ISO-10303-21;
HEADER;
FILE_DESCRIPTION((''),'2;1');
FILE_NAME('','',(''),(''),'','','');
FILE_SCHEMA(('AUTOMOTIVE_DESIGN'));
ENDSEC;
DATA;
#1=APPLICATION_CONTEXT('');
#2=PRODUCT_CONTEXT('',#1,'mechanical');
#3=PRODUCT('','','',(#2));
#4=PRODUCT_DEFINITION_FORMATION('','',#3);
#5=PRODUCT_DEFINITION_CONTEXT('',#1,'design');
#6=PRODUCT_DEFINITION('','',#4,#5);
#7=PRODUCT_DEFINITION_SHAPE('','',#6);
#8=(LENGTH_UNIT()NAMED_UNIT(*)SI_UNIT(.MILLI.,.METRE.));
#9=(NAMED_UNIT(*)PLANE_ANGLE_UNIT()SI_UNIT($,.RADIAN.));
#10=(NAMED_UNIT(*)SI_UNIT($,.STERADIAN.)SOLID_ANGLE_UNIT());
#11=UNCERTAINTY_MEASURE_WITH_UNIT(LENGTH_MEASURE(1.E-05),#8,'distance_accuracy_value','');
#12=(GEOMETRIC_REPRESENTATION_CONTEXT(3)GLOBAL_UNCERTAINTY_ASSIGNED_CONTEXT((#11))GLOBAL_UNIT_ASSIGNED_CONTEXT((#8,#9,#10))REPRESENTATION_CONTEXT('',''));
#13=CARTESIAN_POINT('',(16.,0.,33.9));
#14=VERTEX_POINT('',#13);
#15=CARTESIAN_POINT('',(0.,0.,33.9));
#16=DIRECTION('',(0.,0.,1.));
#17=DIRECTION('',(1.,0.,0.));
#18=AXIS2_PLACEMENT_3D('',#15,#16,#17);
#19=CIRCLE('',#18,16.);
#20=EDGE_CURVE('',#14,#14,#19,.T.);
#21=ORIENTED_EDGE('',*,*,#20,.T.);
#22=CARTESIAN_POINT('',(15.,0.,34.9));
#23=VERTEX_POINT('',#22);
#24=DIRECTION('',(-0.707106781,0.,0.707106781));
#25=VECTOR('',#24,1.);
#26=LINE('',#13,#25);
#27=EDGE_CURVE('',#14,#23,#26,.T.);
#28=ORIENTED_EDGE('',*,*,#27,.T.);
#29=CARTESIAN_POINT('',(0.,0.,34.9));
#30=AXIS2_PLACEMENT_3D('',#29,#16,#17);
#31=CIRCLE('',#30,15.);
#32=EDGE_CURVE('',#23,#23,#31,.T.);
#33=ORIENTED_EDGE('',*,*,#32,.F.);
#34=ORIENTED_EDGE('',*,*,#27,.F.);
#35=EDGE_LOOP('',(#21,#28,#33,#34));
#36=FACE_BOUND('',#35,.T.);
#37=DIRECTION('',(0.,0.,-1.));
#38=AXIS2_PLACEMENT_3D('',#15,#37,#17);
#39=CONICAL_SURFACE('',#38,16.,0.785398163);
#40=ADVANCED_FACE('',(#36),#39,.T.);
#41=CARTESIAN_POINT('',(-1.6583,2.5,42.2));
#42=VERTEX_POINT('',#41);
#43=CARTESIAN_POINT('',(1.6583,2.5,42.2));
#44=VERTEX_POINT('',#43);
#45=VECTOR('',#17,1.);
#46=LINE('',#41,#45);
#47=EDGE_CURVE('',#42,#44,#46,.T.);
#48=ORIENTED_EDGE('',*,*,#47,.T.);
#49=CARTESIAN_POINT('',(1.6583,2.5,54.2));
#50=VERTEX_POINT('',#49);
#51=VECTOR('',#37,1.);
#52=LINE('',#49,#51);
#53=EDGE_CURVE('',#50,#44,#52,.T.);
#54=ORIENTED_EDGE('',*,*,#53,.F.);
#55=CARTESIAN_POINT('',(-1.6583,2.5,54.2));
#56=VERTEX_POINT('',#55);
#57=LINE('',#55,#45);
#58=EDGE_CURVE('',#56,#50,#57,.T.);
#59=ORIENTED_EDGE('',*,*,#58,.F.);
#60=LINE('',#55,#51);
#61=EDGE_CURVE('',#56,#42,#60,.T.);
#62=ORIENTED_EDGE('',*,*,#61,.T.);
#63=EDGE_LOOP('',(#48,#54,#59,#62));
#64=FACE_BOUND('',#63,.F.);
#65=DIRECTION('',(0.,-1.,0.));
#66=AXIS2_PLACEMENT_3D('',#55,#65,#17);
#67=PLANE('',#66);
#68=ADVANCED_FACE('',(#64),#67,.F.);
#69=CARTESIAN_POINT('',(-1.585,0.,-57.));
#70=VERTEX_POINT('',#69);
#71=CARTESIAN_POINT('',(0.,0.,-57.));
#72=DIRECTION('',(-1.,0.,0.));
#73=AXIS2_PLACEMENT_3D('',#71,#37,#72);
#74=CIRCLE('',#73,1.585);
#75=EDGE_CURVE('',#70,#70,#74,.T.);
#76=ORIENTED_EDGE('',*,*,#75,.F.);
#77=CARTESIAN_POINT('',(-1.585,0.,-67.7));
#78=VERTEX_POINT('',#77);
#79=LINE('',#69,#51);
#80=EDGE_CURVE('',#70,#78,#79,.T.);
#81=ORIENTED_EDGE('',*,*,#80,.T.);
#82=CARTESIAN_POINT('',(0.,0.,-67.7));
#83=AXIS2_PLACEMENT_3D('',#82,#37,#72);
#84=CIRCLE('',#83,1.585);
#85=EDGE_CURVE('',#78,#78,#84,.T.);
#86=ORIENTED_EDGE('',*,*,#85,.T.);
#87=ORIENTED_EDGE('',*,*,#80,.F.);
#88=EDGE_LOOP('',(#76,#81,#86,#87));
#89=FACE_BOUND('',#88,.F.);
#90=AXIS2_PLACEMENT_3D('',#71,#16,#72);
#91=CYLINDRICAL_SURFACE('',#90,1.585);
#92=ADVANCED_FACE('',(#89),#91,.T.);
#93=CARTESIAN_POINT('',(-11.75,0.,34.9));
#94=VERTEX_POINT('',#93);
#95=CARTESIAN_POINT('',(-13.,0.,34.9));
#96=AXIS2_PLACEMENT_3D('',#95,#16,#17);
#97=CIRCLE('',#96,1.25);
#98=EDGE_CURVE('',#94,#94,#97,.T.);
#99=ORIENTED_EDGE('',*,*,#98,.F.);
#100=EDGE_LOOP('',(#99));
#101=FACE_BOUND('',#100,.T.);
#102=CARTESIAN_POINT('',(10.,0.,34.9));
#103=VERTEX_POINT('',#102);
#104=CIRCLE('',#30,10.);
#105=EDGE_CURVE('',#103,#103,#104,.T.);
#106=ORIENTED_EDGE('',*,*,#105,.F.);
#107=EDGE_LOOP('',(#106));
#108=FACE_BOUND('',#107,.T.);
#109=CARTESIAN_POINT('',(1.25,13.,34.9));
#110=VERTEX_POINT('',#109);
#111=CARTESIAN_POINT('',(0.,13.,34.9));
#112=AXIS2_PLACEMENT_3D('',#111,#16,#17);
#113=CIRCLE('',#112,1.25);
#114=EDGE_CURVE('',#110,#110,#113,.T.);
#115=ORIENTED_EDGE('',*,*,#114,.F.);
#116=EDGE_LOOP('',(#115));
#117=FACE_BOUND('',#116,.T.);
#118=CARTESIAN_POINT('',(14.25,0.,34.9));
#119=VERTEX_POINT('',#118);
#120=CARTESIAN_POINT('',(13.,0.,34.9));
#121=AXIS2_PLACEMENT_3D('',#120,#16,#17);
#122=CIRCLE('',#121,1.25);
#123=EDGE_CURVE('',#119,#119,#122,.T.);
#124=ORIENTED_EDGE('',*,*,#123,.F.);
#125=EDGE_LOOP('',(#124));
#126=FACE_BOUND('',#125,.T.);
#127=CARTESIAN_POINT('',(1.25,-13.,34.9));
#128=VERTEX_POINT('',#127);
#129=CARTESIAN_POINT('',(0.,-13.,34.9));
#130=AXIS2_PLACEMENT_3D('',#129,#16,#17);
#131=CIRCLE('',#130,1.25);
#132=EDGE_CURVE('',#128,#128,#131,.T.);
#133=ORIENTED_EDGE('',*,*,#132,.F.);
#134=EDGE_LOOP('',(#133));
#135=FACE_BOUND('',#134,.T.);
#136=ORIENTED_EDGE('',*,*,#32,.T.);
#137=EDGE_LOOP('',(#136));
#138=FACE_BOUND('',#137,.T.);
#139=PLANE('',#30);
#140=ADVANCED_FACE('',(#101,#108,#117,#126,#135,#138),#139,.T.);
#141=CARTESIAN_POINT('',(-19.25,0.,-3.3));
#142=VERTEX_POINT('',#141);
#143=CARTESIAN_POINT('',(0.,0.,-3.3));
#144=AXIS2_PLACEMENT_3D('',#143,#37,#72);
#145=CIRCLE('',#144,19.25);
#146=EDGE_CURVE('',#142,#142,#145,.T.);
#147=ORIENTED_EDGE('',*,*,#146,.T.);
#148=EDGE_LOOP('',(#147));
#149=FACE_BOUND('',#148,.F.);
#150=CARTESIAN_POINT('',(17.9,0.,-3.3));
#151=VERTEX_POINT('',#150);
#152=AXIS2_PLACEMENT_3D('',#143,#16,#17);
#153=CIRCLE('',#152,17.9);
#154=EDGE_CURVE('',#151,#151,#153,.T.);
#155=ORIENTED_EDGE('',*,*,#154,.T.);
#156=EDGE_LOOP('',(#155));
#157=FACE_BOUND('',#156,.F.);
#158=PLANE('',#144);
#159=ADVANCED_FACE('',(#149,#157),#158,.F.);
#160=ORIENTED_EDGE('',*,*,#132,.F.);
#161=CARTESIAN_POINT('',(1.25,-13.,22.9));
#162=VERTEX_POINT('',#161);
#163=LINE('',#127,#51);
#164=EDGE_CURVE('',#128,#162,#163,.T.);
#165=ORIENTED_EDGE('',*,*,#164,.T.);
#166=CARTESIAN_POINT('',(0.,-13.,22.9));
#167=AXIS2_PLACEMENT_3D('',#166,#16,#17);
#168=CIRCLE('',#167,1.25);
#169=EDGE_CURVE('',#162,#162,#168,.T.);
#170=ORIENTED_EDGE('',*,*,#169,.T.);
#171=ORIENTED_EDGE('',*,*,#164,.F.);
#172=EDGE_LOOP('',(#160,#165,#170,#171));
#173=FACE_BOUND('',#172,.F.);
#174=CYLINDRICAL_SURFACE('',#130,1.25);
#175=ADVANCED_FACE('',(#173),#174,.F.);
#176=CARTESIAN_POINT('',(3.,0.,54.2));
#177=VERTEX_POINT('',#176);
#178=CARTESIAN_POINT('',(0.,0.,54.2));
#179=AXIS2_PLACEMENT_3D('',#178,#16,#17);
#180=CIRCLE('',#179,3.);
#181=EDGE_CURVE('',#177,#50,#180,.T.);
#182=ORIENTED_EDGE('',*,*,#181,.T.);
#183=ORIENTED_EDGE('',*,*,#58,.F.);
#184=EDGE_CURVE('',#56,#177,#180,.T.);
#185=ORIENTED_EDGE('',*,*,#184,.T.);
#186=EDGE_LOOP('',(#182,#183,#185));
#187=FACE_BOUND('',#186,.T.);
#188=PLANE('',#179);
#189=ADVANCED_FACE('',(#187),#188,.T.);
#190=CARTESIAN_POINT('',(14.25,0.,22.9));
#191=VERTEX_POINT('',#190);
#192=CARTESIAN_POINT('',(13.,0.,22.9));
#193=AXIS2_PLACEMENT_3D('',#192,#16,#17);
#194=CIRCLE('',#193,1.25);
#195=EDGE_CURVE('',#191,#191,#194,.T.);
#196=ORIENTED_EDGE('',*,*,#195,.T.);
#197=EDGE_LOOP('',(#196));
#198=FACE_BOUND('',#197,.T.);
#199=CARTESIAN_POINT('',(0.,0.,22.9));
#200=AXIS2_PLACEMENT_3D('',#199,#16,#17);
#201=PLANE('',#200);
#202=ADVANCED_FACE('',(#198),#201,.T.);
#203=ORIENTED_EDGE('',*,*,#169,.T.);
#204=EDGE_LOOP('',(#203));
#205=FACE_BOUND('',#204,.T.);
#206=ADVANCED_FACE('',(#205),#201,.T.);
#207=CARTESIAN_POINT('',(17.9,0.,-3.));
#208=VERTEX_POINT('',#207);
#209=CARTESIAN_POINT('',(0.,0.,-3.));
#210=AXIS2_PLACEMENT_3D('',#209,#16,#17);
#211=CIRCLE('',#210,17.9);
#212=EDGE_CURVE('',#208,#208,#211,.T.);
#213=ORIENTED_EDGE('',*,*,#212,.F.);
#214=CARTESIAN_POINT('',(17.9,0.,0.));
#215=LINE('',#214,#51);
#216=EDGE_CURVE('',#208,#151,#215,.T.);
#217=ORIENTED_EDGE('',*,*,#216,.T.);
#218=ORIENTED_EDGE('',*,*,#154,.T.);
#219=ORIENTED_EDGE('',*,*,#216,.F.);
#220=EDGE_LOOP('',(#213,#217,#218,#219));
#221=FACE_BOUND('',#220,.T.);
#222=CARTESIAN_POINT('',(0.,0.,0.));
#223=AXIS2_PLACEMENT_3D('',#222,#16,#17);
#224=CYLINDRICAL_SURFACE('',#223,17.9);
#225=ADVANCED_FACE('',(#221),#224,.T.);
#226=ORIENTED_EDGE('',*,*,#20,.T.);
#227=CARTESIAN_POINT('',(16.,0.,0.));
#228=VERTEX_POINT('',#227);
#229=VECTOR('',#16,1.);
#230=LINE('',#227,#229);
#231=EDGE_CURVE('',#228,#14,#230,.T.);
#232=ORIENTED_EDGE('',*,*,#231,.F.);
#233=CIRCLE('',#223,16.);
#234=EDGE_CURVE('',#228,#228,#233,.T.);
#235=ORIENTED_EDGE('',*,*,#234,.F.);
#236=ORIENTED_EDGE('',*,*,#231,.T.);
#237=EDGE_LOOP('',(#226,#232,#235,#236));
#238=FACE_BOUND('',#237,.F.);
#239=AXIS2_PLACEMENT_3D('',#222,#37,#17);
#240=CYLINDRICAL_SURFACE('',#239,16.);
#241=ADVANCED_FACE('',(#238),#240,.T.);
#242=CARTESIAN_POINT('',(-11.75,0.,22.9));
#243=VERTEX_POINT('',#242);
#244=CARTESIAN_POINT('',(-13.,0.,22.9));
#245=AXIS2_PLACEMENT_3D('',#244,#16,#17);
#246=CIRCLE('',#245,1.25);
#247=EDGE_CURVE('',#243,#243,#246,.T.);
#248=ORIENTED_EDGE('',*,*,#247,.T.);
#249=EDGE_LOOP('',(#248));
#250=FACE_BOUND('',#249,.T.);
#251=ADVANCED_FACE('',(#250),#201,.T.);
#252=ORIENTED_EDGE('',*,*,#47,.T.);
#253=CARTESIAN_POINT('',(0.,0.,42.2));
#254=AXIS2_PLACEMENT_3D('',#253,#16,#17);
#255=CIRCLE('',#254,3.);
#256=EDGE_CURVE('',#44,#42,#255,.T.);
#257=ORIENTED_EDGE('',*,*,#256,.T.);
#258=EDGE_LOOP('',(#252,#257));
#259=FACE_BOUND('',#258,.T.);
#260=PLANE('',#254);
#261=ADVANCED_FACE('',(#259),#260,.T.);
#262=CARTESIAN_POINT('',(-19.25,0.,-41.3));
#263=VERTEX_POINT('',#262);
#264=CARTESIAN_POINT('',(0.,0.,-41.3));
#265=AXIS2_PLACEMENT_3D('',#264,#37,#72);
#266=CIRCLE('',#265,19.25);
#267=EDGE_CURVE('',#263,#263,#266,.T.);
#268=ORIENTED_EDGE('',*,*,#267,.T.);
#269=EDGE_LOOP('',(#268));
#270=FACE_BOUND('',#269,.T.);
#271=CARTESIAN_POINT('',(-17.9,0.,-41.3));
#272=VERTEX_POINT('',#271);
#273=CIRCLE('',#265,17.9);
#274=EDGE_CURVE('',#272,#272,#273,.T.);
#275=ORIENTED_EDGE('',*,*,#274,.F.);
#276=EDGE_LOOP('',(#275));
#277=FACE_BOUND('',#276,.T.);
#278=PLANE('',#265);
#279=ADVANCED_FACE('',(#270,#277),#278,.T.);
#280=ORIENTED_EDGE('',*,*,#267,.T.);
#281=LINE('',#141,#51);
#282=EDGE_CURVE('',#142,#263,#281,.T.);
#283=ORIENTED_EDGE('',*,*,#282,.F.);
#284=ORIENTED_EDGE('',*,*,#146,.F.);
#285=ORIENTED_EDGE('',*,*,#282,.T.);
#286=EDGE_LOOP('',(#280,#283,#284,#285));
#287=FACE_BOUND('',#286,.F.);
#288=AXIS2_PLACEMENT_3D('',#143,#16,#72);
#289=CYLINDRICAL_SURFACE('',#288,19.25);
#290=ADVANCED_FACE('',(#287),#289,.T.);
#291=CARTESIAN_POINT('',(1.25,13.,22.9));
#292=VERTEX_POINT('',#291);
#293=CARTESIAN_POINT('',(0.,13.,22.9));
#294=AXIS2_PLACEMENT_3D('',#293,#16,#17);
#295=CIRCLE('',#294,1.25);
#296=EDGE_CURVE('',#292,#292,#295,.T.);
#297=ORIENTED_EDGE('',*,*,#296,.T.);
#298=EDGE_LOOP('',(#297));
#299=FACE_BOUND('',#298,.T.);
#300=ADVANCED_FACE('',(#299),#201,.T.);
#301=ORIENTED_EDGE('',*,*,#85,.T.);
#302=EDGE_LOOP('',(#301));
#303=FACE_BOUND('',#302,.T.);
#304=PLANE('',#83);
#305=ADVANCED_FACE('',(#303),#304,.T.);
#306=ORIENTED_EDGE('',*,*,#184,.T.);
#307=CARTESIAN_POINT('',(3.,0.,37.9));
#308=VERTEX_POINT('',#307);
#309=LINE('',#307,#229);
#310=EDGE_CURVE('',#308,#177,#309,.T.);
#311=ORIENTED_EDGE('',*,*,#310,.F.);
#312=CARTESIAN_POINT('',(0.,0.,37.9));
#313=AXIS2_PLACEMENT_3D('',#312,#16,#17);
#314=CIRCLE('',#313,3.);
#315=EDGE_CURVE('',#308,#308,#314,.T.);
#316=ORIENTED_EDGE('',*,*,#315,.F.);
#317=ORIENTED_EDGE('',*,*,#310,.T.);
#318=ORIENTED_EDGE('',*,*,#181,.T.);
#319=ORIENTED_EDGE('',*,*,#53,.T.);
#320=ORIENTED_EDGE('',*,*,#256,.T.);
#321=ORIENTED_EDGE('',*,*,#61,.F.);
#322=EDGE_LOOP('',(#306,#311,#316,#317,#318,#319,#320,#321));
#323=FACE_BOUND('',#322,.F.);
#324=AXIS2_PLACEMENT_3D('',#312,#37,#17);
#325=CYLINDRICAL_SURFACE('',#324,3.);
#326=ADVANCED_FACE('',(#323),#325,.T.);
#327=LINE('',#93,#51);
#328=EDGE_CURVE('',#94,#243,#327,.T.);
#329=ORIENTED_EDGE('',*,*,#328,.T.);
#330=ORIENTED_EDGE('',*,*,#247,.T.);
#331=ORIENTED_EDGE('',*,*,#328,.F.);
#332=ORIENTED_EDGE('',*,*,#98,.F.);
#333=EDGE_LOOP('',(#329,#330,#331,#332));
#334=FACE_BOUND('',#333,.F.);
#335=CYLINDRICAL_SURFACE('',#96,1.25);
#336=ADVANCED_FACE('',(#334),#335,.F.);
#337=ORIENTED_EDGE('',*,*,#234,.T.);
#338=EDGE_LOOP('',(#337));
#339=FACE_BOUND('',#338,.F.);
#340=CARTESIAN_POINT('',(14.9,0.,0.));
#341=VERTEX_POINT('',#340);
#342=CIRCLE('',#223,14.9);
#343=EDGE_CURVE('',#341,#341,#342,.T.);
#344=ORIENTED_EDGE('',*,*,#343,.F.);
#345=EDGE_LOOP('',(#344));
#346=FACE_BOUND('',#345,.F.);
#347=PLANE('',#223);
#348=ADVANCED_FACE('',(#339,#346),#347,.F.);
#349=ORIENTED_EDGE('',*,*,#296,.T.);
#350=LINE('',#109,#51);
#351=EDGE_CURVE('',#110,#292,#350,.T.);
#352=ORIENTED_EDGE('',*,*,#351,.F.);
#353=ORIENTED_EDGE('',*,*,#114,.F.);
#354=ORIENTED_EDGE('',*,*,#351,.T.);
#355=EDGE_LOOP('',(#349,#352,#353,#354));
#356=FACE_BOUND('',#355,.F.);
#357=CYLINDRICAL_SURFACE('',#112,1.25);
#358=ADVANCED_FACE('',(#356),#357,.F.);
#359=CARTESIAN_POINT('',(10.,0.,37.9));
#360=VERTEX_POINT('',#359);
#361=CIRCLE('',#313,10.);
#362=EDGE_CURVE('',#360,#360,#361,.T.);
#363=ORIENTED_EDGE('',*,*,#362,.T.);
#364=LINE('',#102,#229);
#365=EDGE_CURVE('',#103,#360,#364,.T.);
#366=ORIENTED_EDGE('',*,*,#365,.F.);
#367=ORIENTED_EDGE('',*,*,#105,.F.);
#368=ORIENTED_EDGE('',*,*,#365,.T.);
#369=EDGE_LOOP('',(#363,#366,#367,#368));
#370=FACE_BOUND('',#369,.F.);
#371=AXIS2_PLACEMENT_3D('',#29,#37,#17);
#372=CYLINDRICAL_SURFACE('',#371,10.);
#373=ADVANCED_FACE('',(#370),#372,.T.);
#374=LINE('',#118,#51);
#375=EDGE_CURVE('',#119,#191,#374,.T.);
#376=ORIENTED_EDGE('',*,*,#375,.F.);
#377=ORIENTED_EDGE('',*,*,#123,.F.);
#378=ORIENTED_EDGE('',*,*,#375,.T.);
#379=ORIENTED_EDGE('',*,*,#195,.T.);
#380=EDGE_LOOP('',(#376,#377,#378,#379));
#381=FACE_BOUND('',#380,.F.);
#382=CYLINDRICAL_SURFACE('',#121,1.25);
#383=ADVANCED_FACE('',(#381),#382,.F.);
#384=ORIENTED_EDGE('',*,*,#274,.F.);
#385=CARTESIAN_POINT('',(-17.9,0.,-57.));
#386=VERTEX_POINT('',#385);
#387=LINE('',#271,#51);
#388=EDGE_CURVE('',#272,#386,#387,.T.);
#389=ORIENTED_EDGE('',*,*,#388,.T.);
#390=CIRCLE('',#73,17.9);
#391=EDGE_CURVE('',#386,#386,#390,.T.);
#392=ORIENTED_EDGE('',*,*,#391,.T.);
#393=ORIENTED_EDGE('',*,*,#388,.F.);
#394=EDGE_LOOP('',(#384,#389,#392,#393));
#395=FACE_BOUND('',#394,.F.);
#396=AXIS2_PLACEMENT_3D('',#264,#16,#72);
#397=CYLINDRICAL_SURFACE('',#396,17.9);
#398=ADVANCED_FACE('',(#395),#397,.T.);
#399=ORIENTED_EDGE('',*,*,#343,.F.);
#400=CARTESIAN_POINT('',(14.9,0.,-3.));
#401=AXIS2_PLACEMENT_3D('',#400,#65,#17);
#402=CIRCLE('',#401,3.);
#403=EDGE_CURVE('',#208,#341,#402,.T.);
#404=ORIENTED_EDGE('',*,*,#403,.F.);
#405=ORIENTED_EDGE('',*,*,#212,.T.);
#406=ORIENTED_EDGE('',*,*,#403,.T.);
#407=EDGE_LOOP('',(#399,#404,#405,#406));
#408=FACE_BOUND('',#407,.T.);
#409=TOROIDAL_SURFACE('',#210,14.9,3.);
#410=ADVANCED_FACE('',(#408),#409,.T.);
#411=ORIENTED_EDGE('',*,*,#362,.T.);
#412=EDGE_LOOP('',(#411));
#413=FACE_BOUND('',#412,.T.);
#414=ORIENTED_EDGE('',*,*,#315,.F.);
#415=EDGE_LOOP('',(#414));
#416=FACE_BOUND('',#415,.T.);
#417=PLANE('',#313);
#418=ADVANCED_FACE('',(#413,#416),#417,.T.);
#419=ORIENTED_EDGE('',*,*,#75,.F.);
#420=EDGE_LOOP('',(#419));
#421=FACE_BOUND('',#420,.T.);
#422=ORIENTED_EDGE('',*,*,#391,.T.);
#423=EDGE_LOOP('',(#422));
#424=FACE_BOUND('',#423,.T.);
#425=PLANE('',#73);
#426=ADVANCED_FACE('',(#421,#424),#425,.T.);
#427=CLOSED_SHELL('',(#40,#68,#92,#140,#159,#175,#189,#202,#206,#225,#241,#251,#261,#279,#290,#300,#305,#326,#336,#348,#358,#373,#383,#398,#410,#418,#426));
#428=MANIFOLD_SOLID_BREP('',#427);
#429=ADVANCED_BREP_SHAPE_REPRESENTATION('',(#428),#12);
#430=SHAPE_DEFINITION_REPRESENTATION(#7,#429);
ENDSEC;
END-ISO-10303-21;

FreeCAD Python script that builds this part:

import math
import FreeCAD as App
import Part
import Sketcher

V = App.Vector


def edges_at(feature, points):
    """Names of the edges that pass closest to the given points."""
    edges = feature.Shape.Edges
    near = lambda p: min(range(len(edges)), key=lambda i: edges[i].distToShape(Part.Vertex(*p))[0])
    return sorted({f"Edge{near(p) + 1}" for p in points})

doc = App.newDocument("Part")
body = doc.addObject("PartDesign::Body", "Body")

# Sketch on XY plane
sketch1 = doc.addObject("Sketcher::SketchObject", "Sketch")
body.addObject(sketch1)
sketch1.AttachmentSupport = (doc.XY_Plane, [""])
sketch1.MapMode = "FlatFace"
sketch1.addGeometry(Part.Circle(V(0, 0, 0), V(0, 0, 1), 18), False)
sketch1.addConstraint(Sketcher.Constraint("Coincident", 0, 3, -1, 1))
sketch1.addConstraint(Sketcher.Constraint("Diameter", 0, 35.8))
pad1 = doc.addObject("PartDesign::Pad", "Pad")
body.addObject(pad1)
pad1.Profile = sketch1
pad1.Length = 3.3
pad1.Reversed = True
doc.recompute()

fillet = doc.addObject("PartDesign::Fillet", "Fillet")
body.addObject(fillet)
fillet.Base = (pad1, edges_at(pad1, [(-17.9, 0, 0)]))
fillet.Radius = 3

# Sketch on XY plane
sketch2 = doc.addObject("Sketcher::SketchObject", "Sketch001")
body.addObject(sketch2)
sketch2.AttachmentSupport = (doc.XY_Plane, [""])
sketch2.MapMode = "FlatFace"
sketch2.AttachmentOffset = App.Placement(V(0, 0, -3.3), App.Rotation())
sketch2.addGeometry(Part.Circle(V(0, 0, 0), V(0, 0, 1), 19), False)
sketch2.addConstraint(Sketcher.Constraint("Coincident", 0, 3, -1, 1))
sketch2.addConstraint(Sketcher.Constraint("Diameter", 0, 38.5))
pad2 = doc.addObject("PartDesign::Pad", "Pad001")
body.addObject(pad2)
pad2.Profile = sketch2
pad2.Length = 38
pad2.Reversed = True

# Sketch on XY plane
sketch3 = doc.addObject("Sketcher::SketchObject", "Sketch002")
body.addObject(sketch3)
sketch3.AttachmentSupport = (doc.XY_Plane, [""])
sketch3.MapMode = "FlatFace"
sketch3.AttachmentOffset = App.Placement(V(0, 0, -41.3), App.Rotation())
sketch3.addGeometry(Part.Circle(V(0, 0, 0), V(0, 0, 1), 18), False)
sketch3.addConstraint(Sketcher.Constraint("Coincident", 0, 3, -1, 1))
sketch3.addConstraint(Sketcher.Constraint("Diameter", 0, 35.8))
pad3 = doc.addObject("PartDesign::Pad", "Pad002")
body.addObject(pad3)
pad3.Profile = sketch3
pad3.Length = 15.7
pad3.Reversed = True

# Sketch on XY plane
sketch4 = doc.addObject("Sketcher::SketchObject", "Sketch003")
body.addObject(sketch4)
sketch4.AttachmentSupport = (doc.XY_Plane, [""])
sketch4.MapMode = "FlatFace"
sketch4.AttachmentOffset = App.Placement(V(0, 0, -57), App.Rotation())
sketch4.addGeometry(Part.Circle(V(0, 0, 0), V(0, 0, 1), 1.6), False)
sketch4.addConstraint(Sketcher.Constraint("Coincident", 0, 3, -1, 1))
sketch4.addConstraint(Sketcher.Constraint("Diameter", 0, 3.17))
pad4 = doc.addObject("PartDesign::Pad", "Pad003")
body.addObject(pad4)
pad4.Profile = sketch4
pad4.Length = 10.7
pad4.Reversed = True

# Sketch on XY plane
sketch5 = doc.addObject("Sketcher::SketchObject", "Sketch004")
body.addObject(sketch5)
sketch5.AttachmentSupport = (doc.XY_Plane, [""])
sketch5.MapMode = "FlatFace"
sketch5.addGeometry(Part.Circle(V(0, 0, 0), V(0, 0, 1), 16), False)
sketch5.addConstraint(Sketcher.Constraint("Coincident", 0, 3, -1, 1))
sketch5.addConstraint(Sketcher.Constraint("Diameter", 0, 32.0))
pad5 = doc.addObject("PartDesign::Pad", "Pad004")
body.addObject(pad5)
pad5.Profile = sketch5
pad5.Length = 34.9
doc.recompute()

chamfer = doc.addObject("PartDesign::Chamfer", "Chamfer")
body.addObject(chamfer)
chamfer.Base = (pad5, edges_at(pad5, [(-16, 0, 34.9)]))
chamfer.Size = 1

# Sketch on XY plane
sketch6 = doc.addObject("Sketcher::SketchObject", "Sketch005")
body.addObject(sketch6)
sketch6.AttachmentSupport = (doc.XY_Plane, [""])
sketch6.MapMode = "FlatFace"
sketch6.AttachmentOffset = App.Placement(V(0, 0, 34.9), App.Rotation())
sketch6.addGeometry(Part.Circle(V(0, 0, 0), V(0, 0, 1), 10), False)
sketch6.addConstraint(Sketcher.Constraint("Coincident", 0, 3, -1, 1))
sketch6.addConstraint(Sketcher.Constraint("Diameter", 0, 20.0))
pad6 = doc.addObject("PartDesign::Pad", "Pad005")
body.addObject(pad6)
pad6.Profile = sketch6
pad6.Length = 3

# Sketch on XY plane
sketch7 = doc.addObject("Sketcher::SketchObject", "Sketch006")
body.addObject(sketch7)
sketch7.AttachmentSupport = (doc.XY_Plane, [""])
sketch7.MapMode = "FlatFace"
sketch7.AttachmentOffset = App.Placement(V(0, 0, 37.9), App.Rotation())
sketch7.addGeometry(Part.Circle(V(0, 0, 0), V(0, 0, 1), 3), False)
sketch7.addConstraint(Sketcher.Constraint("Coincident", 0, 3, -1, 1))
sketch7.addConstraint(Sketcher.Constraint("Diameter", 0, 6.0))
pad7 = doc.addObject("PartDesign::Pad", "Pad006")
body.addObject(pad7)
pad7.Profile = sketch7
pad7.Length = 16.3

# Sketch on XY plane
sketch8 = doc.addObject("Sketcher::SketchObject", "Sketch007")
body.addObject(sketch8)
sketch8.AttachmentSupport = (doc.XY_Plane, [""])
sketch8.MapMode = "FlatFace"
sketch8.AttachmentOffset = App.Placement(V(0, 0, 54.2), App.Rotation())
sketch8.addGeometry(Part.LineSegment(V(-1.7, 2.5, 0), V(1.7, 2.5, 0)), False)
sketch8.addGeometry(Part.ArcOfCircle(Part.Circle(V(0, 0, 0), V(0, 0, 1), 3), math.radians(56), math.radians(124)), False)
sketch8.addConstraint(Sketcher.Constraint("Coincident", 0, 1, 1, 2))
sketch8.addConstraint(Sketcher.Constraint("Coincident", 1, 1, 0, 2))
sketch8.addConstraint(Sketcher.Constraint("Horizontal", 0))
sketch8.addConstraint(Sketcher.Constraint("Coincident", 1, 3, -1, 1))
sketch8.addConstraint(Sketcher.Constraint("Radius", 1, 3.0))
sketch8.addConstraint(Sketcher.Constraint("DistanceY", -1, 1, 0, 1, 2.5))
pocket1 = doc.addObject("PartDesign::Pocket", "Pocket")
body.addObject(pocket1)
pocket1.Profile = sketch8
pocket1.Length = 12

# Sketch on XY plane
sketch9 = doc.addObject("Sketcher::SketchObject", "Sketch008")
body.addObject(sketch9)
sketch9.AttachmentSupport = (doc.XY_Plane, [""])
sketch9.MapMode = "FlatFace"
sketch9.AttachmentOffset = App.Placement(V(0, 0, 34.9), App.Rotation())
sketch9.addGeometry(Part.Circle(V(0, 13, 0), V(0, 0, 1), 1.2), False)
sketch9.addGeometry(Part.Circle(V(-13, 0, 0), V(0, 0, 1), 1.2), False)
sketch9.addGeometry(Part.Circle(V(0, -13, 0), V(0, 0, 1), 1.2), False)
sketch9.addGeometry(Part.Circle(V(13, 0, 0), V(0, 0, 1), 1.2), False)
sketch9.addConstraint(Sketcher.Constraint("Equal", 0, 1))
sketch9.addConstraint(Sketcher.Constraint("Equal", 1, 2))
sketch9.addConstraint(Sketcher.Constraint("Equal", 2, 3))
sketch9.addConstraint(Sketcher.Constraint("Symmetric", 0, 3, 2, 3, -1, 1))
sketch9.addConstraint(Sketcher.Constraint("Symmetric", 1, 3, 3, 3, -1, 1))
sketch9.addConstraint(Sketcher.Constraint("PointOnObject", 0, 3, -2))
sketch9.addConstraint(Sketcher.Constraint("PointOnObject", 1, 3, -1))
sketch9.addConstraint(Sketcher.Constraint("Diameter", 0, 2.5))
sketch9.addConstraint(Sketcher.Constraint("DistanceY", 2, 3, 0, 3, 26.0))
sketch9.addConstraint(Sketcher.Constraint("DistanceX", 1, 3, 3, 3, 26.0))
pocket2 = doc.addObject("PartDesign::Pocket", "Pocket001")
body.addObject(pocket2)
pocket2.Profile = sketch9
pocket2.Length = 12

doc.recompute()
